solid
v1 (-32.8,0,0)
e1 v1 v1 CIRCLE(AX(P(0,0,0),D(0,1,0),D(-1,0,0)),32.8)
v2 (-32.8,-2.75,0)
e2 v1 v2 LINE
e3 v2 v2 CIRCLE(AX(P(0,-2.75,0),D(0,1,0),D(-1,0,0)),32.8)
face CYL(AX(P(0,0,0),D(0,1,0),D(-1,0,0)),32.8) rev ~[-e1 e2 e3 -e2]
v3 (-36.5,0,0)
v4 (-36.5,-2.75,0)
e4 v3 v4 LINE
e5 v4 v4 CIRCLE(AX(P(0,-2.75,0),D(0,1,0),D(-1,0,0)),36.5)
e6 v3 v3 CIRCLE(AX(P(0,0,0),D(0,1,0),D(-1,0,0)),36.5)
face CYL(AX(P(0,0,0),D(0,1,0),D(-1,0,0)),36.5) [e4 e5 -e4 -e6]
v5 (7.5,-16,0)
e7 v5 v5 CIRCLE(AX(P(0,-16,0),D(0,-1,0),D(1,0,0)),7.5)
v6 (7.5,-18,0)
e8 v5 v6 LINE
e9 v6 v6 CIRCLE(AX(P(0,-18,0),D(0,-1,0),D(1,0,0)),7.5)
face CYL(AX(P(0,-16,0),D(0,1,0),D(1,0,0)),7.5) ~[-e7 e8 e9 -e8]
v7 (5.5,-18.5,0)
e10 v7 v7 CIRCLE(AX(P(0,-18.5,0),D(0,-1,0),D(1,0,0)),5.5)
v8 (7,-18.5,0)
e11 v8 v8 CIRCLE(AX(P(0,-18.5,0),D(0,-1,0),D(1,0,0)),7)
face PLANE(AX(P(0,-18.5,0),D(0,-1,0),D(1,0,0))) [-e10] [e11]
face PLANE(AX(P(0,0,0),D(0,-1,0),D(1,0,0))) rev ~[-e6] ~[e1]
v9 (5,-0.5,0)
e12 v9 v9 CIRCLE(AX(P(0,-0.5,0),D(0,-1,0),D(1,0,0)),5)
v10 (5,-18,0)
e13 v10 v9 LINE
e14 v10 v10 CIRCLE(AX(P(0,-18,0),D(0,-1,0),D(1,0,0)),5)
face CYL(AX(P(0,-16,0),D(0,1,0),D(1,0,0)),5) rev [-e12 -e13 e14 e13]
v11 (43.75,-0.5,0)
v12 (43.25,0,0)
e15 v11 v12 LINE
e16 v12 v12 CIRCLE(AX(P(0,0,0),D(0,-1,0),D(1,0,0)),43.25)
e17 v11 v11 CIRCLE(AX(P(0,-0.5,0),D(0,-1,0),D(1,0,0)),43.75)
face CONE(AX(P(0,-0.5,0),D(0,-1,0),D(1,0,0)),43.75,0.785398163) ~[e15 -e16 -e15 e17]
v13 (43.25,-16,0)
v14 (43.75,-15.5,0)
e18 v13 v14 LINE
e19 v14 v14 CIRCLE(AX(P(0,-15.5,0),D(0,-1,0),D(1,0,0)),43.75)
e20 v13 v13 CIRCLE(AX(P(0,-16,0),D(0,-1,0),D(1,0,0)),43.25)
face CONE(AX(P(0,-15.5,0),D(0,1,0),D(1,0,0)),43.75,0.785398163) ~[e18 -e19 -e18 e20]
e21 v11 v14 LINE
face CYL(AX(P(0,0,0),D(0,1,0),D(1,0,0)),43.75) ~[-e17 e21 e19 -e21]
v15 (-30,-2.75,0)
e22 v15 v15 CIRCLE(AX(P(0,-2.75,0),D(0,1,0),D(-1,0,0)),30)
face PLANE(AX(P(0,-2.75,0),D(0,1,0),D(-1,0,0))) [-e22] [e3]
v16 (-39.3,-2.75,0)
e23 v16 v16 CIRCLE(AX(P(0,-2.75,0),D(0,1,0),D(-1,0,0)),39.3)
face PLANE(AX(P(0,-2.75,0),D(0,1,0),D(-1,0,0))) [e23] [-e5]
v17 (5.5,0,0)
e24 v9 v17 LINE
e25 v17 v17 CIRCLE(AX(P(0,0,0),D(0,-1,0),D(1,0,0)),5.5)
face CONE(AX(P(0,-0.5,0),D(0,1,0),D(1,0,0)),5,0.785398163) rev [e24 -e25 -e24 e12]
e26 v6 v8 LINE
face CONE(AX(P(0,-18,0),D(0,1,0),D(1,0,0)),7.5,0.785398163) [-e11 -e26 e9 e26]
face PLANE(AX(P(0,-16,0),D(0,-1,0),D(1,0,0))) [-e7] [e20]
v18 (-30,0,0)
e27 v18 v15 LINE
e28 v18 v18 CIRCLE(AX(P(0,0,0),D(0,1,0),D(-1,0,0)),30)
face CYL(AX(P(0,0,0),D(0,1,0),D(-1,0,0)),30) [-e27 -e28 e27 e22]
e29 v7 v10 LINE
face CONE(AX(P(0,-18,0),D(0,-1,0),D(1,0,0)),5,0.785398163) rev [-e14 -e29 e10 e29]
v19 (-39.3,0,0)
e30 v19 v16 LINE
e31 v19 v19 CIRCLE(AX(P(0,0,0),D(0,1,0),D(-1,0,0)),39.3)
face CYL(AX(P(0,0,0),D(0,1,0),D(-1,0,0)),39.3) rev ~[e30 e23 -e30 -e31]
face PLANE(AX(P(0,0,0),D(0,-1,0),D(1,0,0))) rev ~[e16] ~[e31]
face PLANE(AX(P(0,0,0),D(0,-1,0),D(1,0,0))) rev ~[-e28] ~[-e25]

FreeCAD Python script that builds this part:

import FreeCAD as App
import Part
import Sketcher
Q = App.Units.Quantity


def edges_at(feature, points):
    """Names of the edges that pass closest to the given points."""
    edges = feature.Shape.Edges
    near = lambda p: min(range(len(edges)), key=lambda i: edges[i].distToShape(Part.Vertex(*p))[0])
    return sorted({f"Edge{near(p) + 1}" for p in points})

doc = App.newDocument("Part")
body = doc.addObject("PartDesign::Body", "Body")

# Sketch on XZ plane
sketch1 = doc.addObject("Sketcher::SketchObject", "Sketch")
body.addObject(sketch1)
sketch1.AttachmentSupport = (doc.XZ_Plane, [""])
sketch1.MapMode = "FlatFace"
sketch1.addGeometry(Part.Circle(App.Vector(0, 0, 0), App.Vector(0, 0, 1), 43.75), False)
sketch1.addGeometry(Part.Circle(App.Vector(0, 0, 0), App.Vector(0, 0, 1), 5), False)
sketch1.addConstraint(Sketcher.Constraint("Coincident", 0, 3, -1, 1))
sketch1.addConstraint(Sketcher.Constraint("Coincident", 1, 3, -1, 1))
sketch1.addConstraint(Sketcher.Constraint("Diameter", 1, Q("10 mm")))
sketch1.addConstraint(Sketcher.Constraint("Diameter", 0, Q("87.5 mm")))
pad1 = doc.addObject("PartDesign::Pad", "Pad")
body.addObject(pad1)
pad1.Profile = sketch1
pad1.Length = 16

# Sketch on XZ plane
sketch2 = doc.addObject("Sketcher::SketchObject", "Sketch001")
body.addObject(sketch2)
sketch2.AttachmentSupport = (doc.XZ_Plane, [""])
sketch2.MapMode = "FlatFace"
sketch2.AttachmentOffset = App.Placement(App.Vector(0, 0, 16), App.Rotation())
sketch2.addGeometry(Part.Circle(App.Vector(0, 0, 0), App.Vector(0, 0, 1), 7.5), False)
sketch2.addGeometry(Part.Circle(App.Vector(0, 0, 0), App.Vector(0, 0, 1), 5), False)
sketch2.addConstraint(Sketcher.Constraint("Coincident", 0, 3, -1, 1))
sketch2.addConstraint(Sketcher.Constraint("Coincident", 1, 3, -1, 1))
sketch2.addConstraint(Sketcher.Constraint("Diameter", 0, Q("15 mm")))
sketch2.addConstraint(Sketcher.Constraint("Diameter", 1, Q("10 mm")))
pad2 = doc.addObject("PartDesign::Pad", "Pad001")
body.addObject(pad2)
pad2.Profile = sketch2
pad2.Length = 2.5

# Sketch on XZ plane
sketch3 = doc.addObject("Sketcher::SketchObject", "Sketch002")
body.addObject(sketch3)
sketch3.AttachmentSupport = (doc.XZ_Plane, [""])
sketch3.MapMode = "FlatFace"
sketch3.addGeometry(Part.Circle(App.Vector(0, 0, 0), App.Vector(0, 0, 1), 39.3), False)
sketch3.addGeometry(Part.Circle(App.Vector(0, 0, 0), App.Vector(0, 0, 1), 36.5), False)
sketch3.addGeometry(Part.Circle(App.Vector(0, 0, 0), App.Vector(0, 0, 1), 32.8), False)
sketch3.addGeometry(Part.Circle(App.Vector(0, 0, 0), App.Vector(0, 0, 1), 30), False)
sketch3.addConstraint(Sketcher.Constraint("Coincident", 0, 3, -1, 1))
sketch3.addConstraint(Sketcher.Constraint("Coincident", 1, 3, -1, 1))
sketch3.addConstraint(Sketcher.Constraint("Coincident", 2, 3, -1, 1))
sketch3.addConstraint(Sketcher.Constraint("Coincident", 3, 3, -1, 1))
sketch3.addConstraint(Sketcher.Constraint("Diameter", 1, Q("73 mm")))
sketch3.addConstraint(Sketcher.Constraint("Diameter", 3, Q("60 mm")))
sketch3.addConstraint(Sketcher.Constraint("Diameter", 0, Q("78.6 mm")))
sketch3.addConstraint(Sketcher.Constraint("Diameter", 2, Q("65.6 mm")))
pocket1 = doc.addObject("PartDesign::Pocket", "Pocket")
body.addObject(pocket1)
pocket1.Profile = sketch3
pocket1.Length = 2.75
pocket1.Reversed = True
doc.recompute()

chamfer = doc.addObject("PartDesign::Chamfer", "Chamfer")
body.addObject(chamfer)
chamfer.Base = (pocket1, edges_at(pocket1, [
    (-7.5, -18.5, 0),
    (-5, -18.5, 0),
    (-43.75, -16, 0),
    (-43.75, 0, 0),
    (-5, 0, 0),
]))
chamfer.Size = 0.5

doc.recompute()
